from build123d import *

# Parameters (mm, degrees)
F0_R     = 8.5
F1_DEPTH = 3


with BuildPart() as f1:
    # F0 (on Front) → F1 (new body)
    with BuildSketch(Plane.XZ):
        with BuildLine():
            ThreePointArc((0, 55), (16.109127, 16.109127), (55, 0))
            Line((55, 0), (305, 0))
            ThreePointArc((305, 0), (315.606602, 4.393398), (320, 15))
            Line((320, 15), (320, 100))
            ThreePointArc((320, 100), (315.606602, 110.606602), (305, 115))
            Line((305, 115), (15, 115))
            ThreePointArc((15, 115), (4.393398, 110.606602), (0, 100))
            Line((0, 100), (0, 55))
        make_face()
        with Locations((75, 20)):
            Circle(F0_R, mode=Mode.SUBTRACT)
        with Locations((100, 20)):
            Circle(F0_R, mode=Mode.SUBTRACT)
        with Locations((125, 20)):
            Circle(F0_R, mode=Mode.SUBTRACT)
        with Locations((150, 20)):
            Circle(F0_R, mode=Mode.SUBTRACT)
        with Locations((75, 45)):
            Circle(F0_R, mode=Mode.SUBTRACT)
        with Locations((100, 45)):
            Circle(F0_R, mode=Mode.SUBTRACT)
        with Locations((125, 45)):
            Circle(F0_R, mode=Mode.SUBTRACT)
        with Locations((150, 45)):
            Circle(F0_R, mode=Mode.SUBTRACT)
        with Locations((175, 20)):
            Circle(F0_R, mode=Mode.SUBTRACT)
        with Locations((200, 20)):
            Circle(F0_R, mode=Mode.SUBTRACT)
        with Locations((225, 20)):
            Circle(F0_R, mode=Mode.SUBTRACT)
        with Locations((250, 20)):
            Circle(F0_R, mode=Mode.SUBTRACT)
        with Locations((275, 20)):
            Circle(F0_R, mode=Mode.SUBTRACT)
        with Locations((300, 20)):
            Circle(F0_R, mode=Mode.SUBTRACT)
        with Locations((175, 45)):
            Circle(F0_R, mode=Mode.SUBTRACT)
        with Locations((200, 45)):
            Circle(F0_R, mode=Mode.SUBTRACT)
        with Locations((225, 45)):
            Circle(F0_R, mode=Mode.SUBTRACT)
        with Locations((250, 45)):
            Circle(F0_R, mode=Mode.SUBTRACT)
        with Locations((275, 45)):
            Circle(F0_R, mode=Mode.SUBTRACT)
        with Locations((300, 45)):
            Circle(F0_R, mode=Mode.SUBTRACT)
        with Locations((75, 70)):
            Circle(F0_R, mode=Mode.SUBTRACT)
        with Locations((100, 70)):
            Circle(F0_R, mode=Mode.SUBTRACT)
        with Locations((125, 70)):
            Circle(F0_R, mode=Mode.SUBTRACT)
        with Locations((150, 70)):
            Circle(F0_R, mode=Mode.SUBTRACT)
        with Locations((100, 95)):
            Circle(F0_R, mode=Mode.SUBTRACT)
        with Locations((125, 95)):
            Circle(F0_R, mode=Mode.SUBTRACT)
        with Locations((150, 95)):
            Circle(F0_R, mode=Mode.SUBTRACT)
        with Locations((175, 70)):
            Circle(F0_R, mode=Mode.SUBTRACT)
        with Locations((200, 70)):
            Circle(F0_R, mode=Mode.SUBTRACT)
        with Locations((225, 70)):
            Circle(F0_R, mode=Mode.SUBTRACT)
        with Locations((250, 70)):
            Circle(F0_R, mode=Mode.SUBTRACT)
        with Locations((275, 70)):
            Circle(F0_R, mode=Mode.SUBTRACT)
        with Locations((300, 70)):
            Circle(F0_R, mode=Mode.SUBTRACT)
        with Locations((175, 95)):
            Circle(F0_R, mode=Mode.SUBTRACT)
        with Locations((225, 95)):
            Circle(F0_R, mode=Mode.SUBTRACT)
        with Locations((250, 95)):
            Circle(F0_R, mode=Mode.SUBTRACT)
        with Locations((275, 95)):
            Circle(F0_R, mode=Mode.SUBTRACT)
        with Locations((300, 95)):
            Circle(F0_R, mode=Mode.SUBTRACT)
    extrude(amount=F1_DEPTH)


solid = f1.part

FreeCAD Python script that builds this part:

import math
import FreeCAD as App
import Part
import Sketcher

doc = App.newDocument("Part")
body = doc.addObject("PartDesign::Body", "Body")

sketch1 = body.newObject("Sketcher::SketchObject", "Sketch")
sketch1.AttachmentSupport = (doc.getObject("XZ_Plane"), [""])
sketch1.MapMode = "FlatFace"
sketch1.addGeometry([
    Part.ArcOfCircle(Part.Circle(App.Vector(55, 55, 0), App.Vector(0, 0, 1), 55), math.radians(180), math.radians(270)),
    Part.LineSegment(App.Vector(55, 0, 0), App.Vector(305, 0, 0)),
    Part.ArcOfCircle(Part.Circle(App.Vector(305.000001, 14.999999, 0), App.Vector(0, 0, 1), 14.999999), math.radians(-90.000004), math.radians(0.000004)),
    Part.LineSegment(App.Vector(320, 15, 0), App.Vector(320, 100, 0)),
    Part.ArcOfCircle(Part.Circle(App.Vector(305.000001, 100.000001, 0), App.Vector(0, 0, 1), 14.999999), math.radians(-0.000004), math.radians(90.000004)),
    Part.LineSegment(App.Vector(305, 115, 0), App.Vector(15, 115, 0)),
    Part.ArcOfCircle(Part.Circle(App.Vector(14.999999, 100.000001, 0), App.Vector(0, 0, 1), 14.999999), math.radians(89.999996), math.radians(180.000004)),
    Part.LineSegment(App.Vector(0, 100, 0), App.Vector(0, 55, 0)),
    Part.Circle(App.Vector(75, 20, 0), App.Vector(0, 0, 1), 8.5),
    Part.Circle(App.Vector(100, 20, 0), App.Vector(0, 0, 1), 8.5),
    Part.Circle(App.Vector(125, 20, 0), App.Vector(0, 0, 1), 8.5),
    Part.Circle(App.Vector(150, 20, 0), App.Vector(0, 0, 1), 8.5),
    Part.Circle(App.Vector(175, 20, 0), App.Vector(0, 0, 1), 8.5),
    Part.Circle(App.Vector(75, 45, 0), App.Vector(0, 0, 1), 8.5),
    Part.Circle(App.Vector(100, 45, 0), App.Vector(0, 0, 1), 8.5),
    Part.Circle(App.Vector(125, 45, 0), App.Vector(0, 0, 1), 8.5),
    Part.Circle(App.Vector(150, 45, 0), App.Vector(0, 0, 1), 8.5),
    Part.Circle(App.Vector(175, 45, 0), App.Vector(0, 0, 1), 8.5),
    Part.Circle(App.Vector(200, 20, 0), App.Vector(0, 0, 1), 8.5),
    Part.Circle(App.Vector(225, 20, 0), App.Vector(0, 0, 1), 8.5),
    Part.Circle(App.Vector(250, 20, 0), App.Vector(0, 0, 1), 8.5),
    Part.Circle(App.Vector(275, 20, 0), App.Vector(0, 0, 1), 8.5),
    Part.Circle(App.Vector(300, 20, 0), App.Vector(0, 0, 1), 8.5),
    Part.Circle(App.Vector(200, 45, 0), App.Vector(0, 0, 1), 8.5),
    Part.Circle(App.Vector(225, 45, 0), App.Vector(0, 0, 1), 8.5),
    Part.Circle(App.Vector(250, 45, 0), App.Vector(0, 0, 1), 8.5),
    Part.Circle(App.Vector(275, 45, 0), App.Vector(0, 0, 1), 8.5),
    Part.Circle(App.Vector(300, 45, 0), App.Vector(0, 0, 1), 8.5),
    Part.Circle(App.Vector(75, 70, 0), App.Vector(0, 0, 1), 8.5),
    Part.Circle(App.Vector(100, 70, 0), App.Vector(0, 0, 1), 8.5),
    Part.Circle(App.Vector(125, 70, 0), App.Vector(0, 0, 1), 8.5),
    Part.Circle(App.Vector(150, 70, 0), App.Vector(0, 0, 1), 8.5),
    Part.Circle(App.Vector(175, 70, 0), App.Vector(0, 0, 1), 8.5),
    Part.Circle(App.Vector(100, 95, 0), App.Vector(0, 0, 1), 8.5),
    Part.Circle(App.Vector(125, 95, 0), App.Vector(0, 0, 1), 8.5),
    Part.Circle(App.Vector(150, 95, 0), App.Vector(0, 0, 1), 8.5),
    Part.Circle(App.Vector(175, 95, 0), App.Vector(0, 0, 1), 8.5),
    Part.Circle(App.Vector(200, 70, 0), App.Vector(0, 0, 1), 8.5),
    Part.Circle(App.Vector(225, 70, 0), App.Vector(0, 0, 1), 8.5),
    Part.Circle(App.Vector(250, 70, 0), App.Vector(0, 0, 1), 8.5),
    Part.Circle(App.Vector(275, 70, 0), App.Vector(0, 0, 1), 8.5),
    Part.Circle(App.Vector(300, 70, 0), App.Vector(0, 0, 1), 8.5),
    Part.Circle(App.Vector(225, 95, 0), App.Vector(0, 0, 1), 8.5),
    Part.Circle(App.Vector(250, 95, 0), App.Vector(0, 0, 1), 8.5),
    Part.Circle(App.Vector(275, 95, 0), App.Vector(0, 0, 1), 8.5),
    Part.Circle(App.Vector(300, 95, 0), App.Vector(0, 0, 1), 8.5),
], False)
sketch1.addConstraint([
    Sketcher.Constraint("Tangent", 0, 2, 1, 1),
    Sketcher.Constraint("Tangent", 1, 2, 2, 1),
    Sketcher.Constraint("Tangent", 2, 2, 3, 1),
    Sketcher.Constraint("Tangent", 3, 2, 4, 1),
    Sketcher.Constraint("Tangent", 4, 2, 5, 1),
    Sketcher.Constraint("Tangent", 5, 2, 6, 1),
    Sketcher.Constraint("Tangent", 6, 2, 7, 1),
    Sketcher.Constraint("Tangent", 7, 2, 0, 1),
    Sketcher.Constraint("Horizontal", 1),
    Sketcher.Constraint("Vertical", 3),
    Sketcher.Constraint("Horizontal", 5),
    Sketcher.Constraint("Vertical", 7),
    Sketcher.Constraint("Equal", 2, 4),
    Sketcher.Constraint("Equal", 4, 6),
    Sketcher.Constraint("Equal", 8, 9),
    Sketcher.Constraint("Equal", 9, 10),
    Sketcher.Constraint("Equal", 10, 11),
    Sketcher.Constraint("Equal", 11, 12),
    Sketcher.Constraint("Equal", 12, 13),
    Sketcher.Constraint("Equal", 13, 14),
    Sketcher.Constraint("Equal", 14, 15),
    Sketcher.Constraint("Equal", 15, 16),
    Sketcher.Constraint("Equal", 16, 17),
    Sketcher.Constraint("Equal", 17, 18),
    Sketcher.Constraint("Equal", 18, 19),
    Sketcher.Constraint("Equal", 19, 20),
    Sketcher.Constraint("Equal", 20, 21),
    Sketcher.Constraint("Equal", 21, 22),
    Sketcher.Constraint("Equal", 22, 23),
    Sketcher.Constraint("Equal", 23, 24),
    Sketcher.Constraint("Equal", 24, 25),
    Sketcher.Constraint("Equal", 25, 26),
    Sketcher.Constraint("Equal", 26, 27),
    Sketcher.Constraint("Equal", 27, 28),
    Sketcher.Constraint("Equal", 28, 29),
    Sketcher.Constraint("Equal", 29, 30),
    Sketcher.Constraint("Equal", 30, 31),
    Sketcher.Constraint("Equal", 31, 32),
    Sketcher.Constraint("Equal", 32, 33),
    Sketcher.Constraint("Equal", 33, 34),
    Sketcher.Constraint("Equal", 34, 35),
    Sketcher.Constraint("Equal", 35, 36),
    Sketcher.Constraint("Equal", 36, 37),
    Sketcher.Constraint("Equal", 37, 38),
    Sketcher.Constraint("Equal", 38, 39),
    Sketcher.Constraint("Equal", 39, 40),
    Sketcher.Constraint("Equal", 40, 41),
    Sketcher.Constraint("Equal", 41, 42),
    Sketcher.Constraint("Equal", 42, 43),
    Sketcher.Constraint("Equal", 43, 44),
    Sketcher.Constraint("Equal", 44, 45),
    Sketcher.Constraint("PointOnObject", 0, 2, -1),
    Sketcher.Constraint("PointOnObject", 6, 2, -2),
    Sketcher.Constraint("Horizontal", 8, 3, 9, 3),
    Sketcher.Constraint("Horizontal", 9, 3, 10, 3),
    Sketcher.Constraint("Horizontal", 10, 3, 11, 3),
    Sketcher.Constraint("Horizontal", 11, 3, 12, 3),
    Sketcher.Constraint("Horizontal", 13, 3, 14, 3),
    Sketcher.Constraint("Horizontal", 14, 3, 15, 3),
    Sketcher.Constraint("Horizontal", 15, 3, 16, 3),
    Sketcher.Constraint("Horizontal", 16, 3, 17, 3),
    Sketcher.Constraint("Horizontal", 12, 3, 18, 3),
    Sketcher.Constraint("Horizontal", 18, 3, 19, 3),
    Sketcher.Constraint("Horizontal", 19, 3, 20, 3),
    Sketcher.Constraint("Horizontal", 20, 3, 21, 3),
    Sketcher.Constraint("Horizontal", 21, 3, 22, 3),
    Sketcher.Constraint("Horizontal", 17, 3, 23, 3),
    Sketcher.Constraint("Horizontal", 23, 3, 24, 3),
    Sketcher.Constraint("Horizontal", 24, 3, 25, 3),
    Sketcher.Constraint("Horizontal", 25, 3, 26, 3),
    Sketcher.Constraint("Horizontal", 26, 3, 27, 3),
    Sketcher.Constraint("Horizontal", 28, 3, 29, 3),
    Sketcher.Constraint("Horizontal", 29, 3, 30, 3),
    Sketcher.Constraint("Horizontal", 30, 3, 31, 3),
    Sketcher.Constraint("Horizontal", 31, 3, 32, 3),
    Sketcher.Constraint("Horizontal", 33, 3, 34, 3),
    Sketcher.Constraint("Horizontal", 34, 3, 35, 3),
    Sketcher.Constraint("Horizontal", 35, 3, 36, 3),
    Sketcher.Constraint("Horizontal", 32, 3, 37, 3),
    Sketcher.Constraint("Horizontal", 37, 3, 38, 3),
    Sketcher.Constraint("Horizontal", 38, 3, 39, 3),
    Sketcher.Constraint("Horizontal", 39, 3, 40, 3),
    Sketcher.Constraint("Horizontal", 40, 3, 41, 3),
    Sketcher.Constraint("Horizontal", 36, 3, 42, 3),
    Sketcher.Constraint("Horizontal", 42, 3, 43, 3),
    Sketcher.Constraint("Horizontal", 43, 3, 44, 3),
    Sketcher.Constraint("Horizontal", 44, 3, 45, 3),
    Sketcher.Constraint("Vertical", 8, 3, 13, 3),
    Sketcher.Constraint("Vertical", 9, 3, 14, 3),
    Sketcher.Constraint("Vertical", 10, 3, 15, 3),
    Sketcher.Constraint("Vertical", 11, 3, 16, 3),
    Sketcher.Constraint("Vertical", 12, 3, 17, 3),
    Sketcher.Constraint("Vertical", 18, 3, 23, 3),
    Sketcher.Constraint("Vertical", 19, 3, 24, 3),
    Sketcher.Constraint("Vertical", 20, 3, 25, 3),
    Sketcher.Constraint("Vertical", 21, 3, 26, 3),
    Sketcher.Constraint("Vertical", 22, 3, 27, 3),
    Sketcher.Constraint("Vertical", 13, 3, 28, 3),
    Sketcher.Constraint("Vertical", 14, 3, 29, 3),
    Sketcher.Constraint("Vertical", 15, 3, 30, 3),
    Sketcher.Constraint("Vertical", 16, 3, 31, 3),
    Sketcher.Constraint("Vertical", 17, 3, 32, 3),
    Sketcher.Constraint("Vertical", 29, 3, 33, 3),
    Sketcher.Constraint("Vertical", 30, 3, 34, 3),
    Sketcher.Constraint("Vertical", 31, 3, 35, 3),
    Sketcher.Constraint("Vertical", 32, 3, 36, 3),
    Sketcher.Constraint("Vertical", 23, 3, 37, 3),
    Sketcher.Constraint("Vertical", 24, 3, 38, 3),
    Sketcher.Constraint("Vertical", 25, 3, 39, 3),
    Sketcher.Constraint("Vertical", 26, 3, 40, 3),
    Sketcher.Constraint("Vertical", 27, 3, 41, 3),
    Sketcher.Constraint("Vertical", 38, 3, 42, 3),
    Sketcher.Constraint("Vertical", 39, 3, 43, 3),
    Sketcher.Constraint("Vertical", 40, 3, 44, 3),
    Sketcher.Constraint("Vertical", 41, 3, 45, 3),
    Sketcher.Constraint("Diameter", 8, 17.0),
    Sketcher.Constraint("Radius", 0, 55.0),
    Sketcher.Constraint("Radius", 2, 14.999999),
    Sketcher.Constraint("DistanceX", 1, 1, 1, 2, 250.0),
    Sketcher.Constraint("DistanceY", 3, 1, 3, 2, 85.0),
    Sketcher.Constraint("DistanceX", -1, 1, 8, 3, 75.0),
    Sketcher.Constraint("DistanceY", -1, 1, 8, 3, 20.0),
    Sketcher.Constraint("DistanceX", -1, 1, 9, 3, 100.0),
    Sketcher.Constraint("DistanceX", -1, 1, 10, 3, 125.0),
    Sketcher.Constraint("DistanceX", -1, 1, 11, 3, 150.0),
    Sketcher.Constraint("DistanceX", -1, 1, 12, 3, 175.0),
    Sketcher.Constraint("DistanceY", -1, 1, 13, 3, 45.0),
    Sketcher.Constraint("DistanceX", -1, 1, 18, 3, 200.0),
    Sketcher.Constraint("DistanceX", -1, 1, 19, 3, 225.0),
    Sketcher.Constraint("DistanceX", -1, 1, 20, 3, 250.0),
    Sketcher.Constraint("DistanceX", -1, 1, 21, 3, 275.0),
    Sketcher.Constraint("DistanceX", -1, 1, 22, 3, 300.0),
    Sketcher.Constraint("DistanceY", -1, 1, 28, 3, 70.0),
    Sketcher.Constraint("DistanceY", -1, 1, 33, 3, 95.0),
])
pad1 = body.newObject("PartDesign::Pad", "Pad")
pad1.Profile = sketch1
pad1.Length = 3

doc.recompute()
